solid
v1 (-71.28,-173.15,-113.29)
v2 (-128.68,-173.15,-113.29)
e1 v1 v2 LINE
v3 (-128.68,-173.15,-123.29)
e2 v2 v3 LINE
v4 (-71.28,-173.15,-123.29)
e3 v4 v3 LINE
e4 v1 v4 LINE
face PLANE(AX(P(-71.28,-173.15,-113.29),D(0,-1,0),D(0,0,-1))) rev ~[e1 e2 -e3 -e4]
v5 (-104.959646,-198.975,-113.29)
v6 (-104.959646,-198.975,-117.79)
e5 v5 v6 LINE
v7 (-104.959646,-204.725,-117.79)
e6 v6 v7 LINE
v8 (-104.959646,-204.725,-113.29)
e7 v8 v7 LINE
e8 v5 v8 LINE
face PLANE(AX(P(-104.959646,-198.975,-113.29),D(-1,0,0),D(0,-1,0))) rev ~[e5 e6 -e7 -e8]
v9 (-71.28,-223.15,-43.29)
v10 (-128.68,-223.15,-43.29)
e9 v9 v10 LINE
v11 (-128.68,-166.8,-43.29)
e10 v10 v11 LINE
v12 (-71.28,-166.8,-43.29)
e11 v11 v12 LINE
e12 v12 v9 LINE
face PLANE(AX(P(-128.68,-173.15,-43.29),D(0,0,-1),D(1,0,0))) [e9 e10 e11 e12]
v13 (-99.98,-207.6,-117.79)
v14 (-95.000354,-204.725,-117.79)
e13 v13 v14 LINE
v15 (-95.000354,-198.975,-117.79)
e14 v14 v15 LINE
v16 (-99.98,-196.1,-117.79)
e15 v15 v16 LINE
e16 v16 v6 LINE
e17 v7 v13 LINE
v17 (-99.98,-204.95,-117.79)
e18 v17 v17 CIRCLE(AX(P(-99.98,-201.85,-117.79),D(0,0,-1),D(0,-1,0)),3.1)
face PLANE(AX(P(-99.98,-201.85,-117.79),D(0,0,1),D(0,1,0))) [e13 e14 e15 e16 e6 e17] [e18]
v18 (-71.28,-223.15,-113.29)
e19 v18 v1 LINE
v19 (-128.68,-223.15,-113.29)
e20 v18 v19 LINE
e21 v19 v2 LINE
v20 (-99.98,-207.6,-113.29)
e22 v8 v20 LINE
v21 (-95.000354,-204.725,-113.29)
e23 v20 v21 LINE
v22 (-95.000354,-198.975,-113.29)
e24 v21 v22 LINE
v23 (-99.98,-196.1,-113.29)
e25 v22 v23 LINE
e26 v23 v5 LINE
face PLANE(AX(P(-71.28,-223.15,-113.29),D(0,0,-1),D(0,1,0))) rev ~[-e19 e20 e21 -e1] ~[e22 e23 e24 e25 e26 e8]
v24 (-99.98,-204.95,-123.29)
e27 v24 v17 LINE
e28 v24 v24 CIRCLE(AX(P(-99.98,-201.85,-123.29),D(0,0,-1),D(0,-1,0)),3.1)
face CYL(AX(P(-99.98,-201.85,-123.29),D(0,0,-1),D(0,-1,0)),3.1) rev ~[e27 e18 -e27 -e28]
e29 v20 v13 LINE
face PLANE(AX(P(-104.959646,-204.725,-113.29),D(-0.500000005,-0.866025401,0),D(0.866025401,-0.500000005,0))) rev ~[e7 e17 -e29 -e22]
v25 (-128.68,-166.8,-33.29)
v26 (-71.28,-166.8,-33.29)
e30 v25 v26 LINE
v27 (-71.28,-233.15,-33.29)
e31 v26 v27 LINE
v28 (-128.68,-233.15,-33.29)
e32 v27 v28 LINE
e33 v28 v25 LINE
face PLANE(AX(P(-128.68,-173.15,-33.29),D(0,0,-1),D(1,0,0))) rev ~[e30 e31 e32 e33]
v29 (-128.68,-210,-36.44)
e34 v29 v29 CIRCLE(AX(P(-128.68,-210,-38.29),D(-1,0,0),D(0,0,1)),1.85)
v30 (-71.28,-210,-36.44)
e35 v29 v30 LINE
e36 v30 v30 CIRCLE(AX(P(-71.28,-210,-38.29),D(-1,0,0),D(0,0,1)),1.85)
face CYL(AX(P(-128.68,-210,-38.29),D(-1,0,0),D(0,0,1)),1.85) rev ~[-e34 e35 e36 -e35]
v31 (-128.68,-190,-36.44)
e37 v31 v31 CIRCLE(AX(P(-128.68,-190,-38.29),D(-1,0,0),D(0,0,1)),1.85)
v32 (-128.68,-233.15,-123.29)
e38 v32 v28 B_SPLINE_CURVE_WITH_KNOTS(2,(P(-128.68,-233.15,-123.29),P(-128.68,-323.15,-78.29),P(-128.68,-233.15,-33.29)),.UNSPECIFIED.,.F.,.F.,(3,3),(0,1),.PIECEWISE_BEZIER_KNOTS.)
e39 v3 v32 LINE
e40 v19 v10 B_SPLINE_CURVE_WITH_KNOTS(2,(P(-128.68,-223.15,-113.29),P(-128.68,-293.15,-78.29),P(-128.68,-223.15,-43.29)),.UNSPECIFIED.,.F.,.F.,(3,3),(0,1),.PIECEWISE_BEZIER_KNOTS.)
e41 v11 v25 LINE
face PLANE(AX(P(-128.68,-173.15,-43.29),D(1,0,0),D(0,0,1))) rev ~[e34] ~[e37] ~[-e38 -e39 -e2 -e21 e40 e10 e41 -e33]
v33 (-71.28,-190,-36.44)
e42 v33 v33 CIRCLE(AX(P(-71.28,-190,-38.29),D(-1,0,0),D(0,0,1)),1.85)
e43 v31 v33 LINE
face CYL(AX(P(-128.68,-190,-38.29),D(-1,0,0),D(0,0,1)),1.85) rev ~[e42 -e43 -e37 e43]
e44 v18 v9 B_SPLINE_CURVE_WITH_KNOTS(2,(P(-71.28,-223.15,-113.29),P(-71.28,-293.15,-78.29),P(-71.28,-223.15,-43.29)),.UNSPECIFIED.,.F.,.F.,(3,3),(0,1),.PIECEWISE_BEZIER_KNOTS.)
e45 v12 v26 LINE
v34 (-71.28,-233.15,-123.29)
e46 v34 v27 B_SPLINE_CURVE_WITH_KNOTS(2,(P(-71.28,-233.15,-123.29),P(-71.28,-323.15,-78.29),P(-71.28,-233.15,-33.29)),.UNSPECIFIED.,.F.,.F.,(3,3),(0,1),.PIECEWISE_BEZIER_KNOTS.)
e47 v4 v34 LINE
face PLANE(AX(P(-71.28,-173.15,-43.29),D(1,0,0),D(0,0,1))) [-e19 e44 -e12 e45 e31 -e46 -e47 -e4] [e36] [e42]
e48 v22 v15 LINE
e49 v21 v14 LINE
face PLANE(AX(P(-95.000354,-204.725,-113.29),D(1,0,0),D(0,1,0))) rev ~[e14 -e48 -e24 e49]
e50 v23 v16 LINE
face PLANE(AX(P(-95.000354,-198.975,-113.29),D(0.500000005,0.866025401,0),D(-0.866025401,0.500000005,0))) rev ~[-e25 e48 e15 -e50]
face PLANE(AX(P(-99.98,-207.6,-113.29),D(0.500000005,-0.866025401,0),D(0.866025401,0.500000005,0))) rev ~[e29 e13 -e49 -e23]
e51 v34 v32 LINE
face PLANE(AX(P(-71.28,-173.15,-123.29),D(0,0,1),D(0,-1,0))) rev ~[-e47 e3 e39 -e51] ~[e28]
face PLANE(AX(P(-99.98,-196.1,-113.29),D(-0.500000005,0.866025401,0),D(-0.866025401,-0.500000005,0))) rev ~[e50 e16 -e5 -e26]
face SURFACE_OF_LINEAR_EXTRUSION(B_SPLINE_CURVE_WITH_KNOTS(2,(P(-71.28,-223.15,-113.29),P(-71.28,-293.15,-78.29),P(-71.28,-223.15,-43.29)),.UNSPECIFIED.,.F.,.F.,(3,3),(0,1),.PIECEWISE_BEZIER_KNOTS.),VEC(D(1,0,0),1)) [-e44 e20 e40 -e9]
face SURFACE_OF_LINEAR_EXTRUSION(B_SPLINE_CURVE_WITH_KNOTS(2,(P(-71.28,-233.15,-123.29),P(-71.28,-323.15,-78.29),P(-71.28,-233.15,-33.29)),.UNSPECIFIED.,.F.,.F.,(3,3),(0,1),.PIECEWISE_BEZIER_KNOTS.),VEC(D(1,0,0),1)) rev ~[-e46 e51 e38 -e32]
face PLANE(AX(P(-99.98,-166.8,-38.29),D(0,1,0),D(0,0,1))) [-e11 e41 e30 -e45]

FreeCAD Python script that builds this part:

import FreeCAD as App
import Part
import Sketcher
Q = App.Units.Quantity

doc = App.newDocument("Part")
body = doc.addObject("PartDesign::Body", "Body")

sketch1 = body.newObject("Sketcher::SketchObject", "Sketch")
sketch1.AttachmentSupport = (doc.getObject("XY_Plane"), [""])
sketch1.MapMode = "FlatFace"
sketch1.addGeometry(Part.LineSegment(App.Vector(10, 10, 0), App.Vector(10, 60, 0)), False)
sketch1.addGeometry(Part.LineSegment(App.Vector(10, 60, 0), App.Vector(0, 60, 0)), False)
sketch1.addGeometry(Part.LineSegment(App.Vector(0, 60, 0), App.Vector(0, 0, 0)), False)
sketch1.addGeometry(Part.BSplineCurve([App.Vector(0, 0, 0), App.Vector(45, -90, 0), App.Vector(90, 0, 0)], [3, 3], [0, 1], False, 2, [1, 1, 1], False), False)
sketch1.addGeometry(Part.LineSegment(App.Vector(90, 0, 0), App.Vector(90, 60, 0)), False)
sketch1.addGeometry(Part.LineSegment(App.Vector(90, 60, 0), App.Vector(80, 60, 0)), False)
sketch1.addGeometry(Part.LineSegment(App.Vector(80, 60, 0), App.Vector(80, 10, 0)), False)
sketch1.addGeometry(Part.BSplineCurve([App.Vector(10, 10, 0), App.Vector(45, -60, 0), App.Vector(80, 10, 0)], [3, 3], [0, 1], False, 2, [1, 1, 1], False), False)
sketch1.addConstraint(Sketcher.Constraint("Block", 3))
sketch1.addConstraint(Sketcher.Constraint("Block", 7))
sketch1.addConstraint(Sketcher.Constraint("Coincident", 0, 2, 1, 1))
sketch1.addConstraint(Sketcher.Constraint("Coincident", 1, 2, 2, 1))
sketch1.addConstraint(Sketcher.Constraint("Coincident", 2, 2, 3, 1))
sketch1.addConstraint(Sketcher.Constraint("Coincident", 3, 2, 4, 1))
sketch1.addConstraint(Sketcher.Constraint("Coincident", 4, 2, 5, 1))
sketch1.addConstraint(Sketcher.Constraint("Coincident", 5, 2, 6, 1))
sketch1.addConstraint(Sketcher.Constraint("Coincident", 6, 2, 7, 2))
sketch1.addConstraint(Sketcher.Constraint("Coincident", 7, 1, 0, 1))
sketch1.addConstraint(Sketcher.Constraint("Vertical", 0))
sketch1.addConstraint(Sketcher.Constraint("Horizontal", 1))
sketch1.addConstraint(Sketcher.Constraint("Vertical", 2))
sketch1.addConstraint(Sketcher.Constraint("Vertical", 4))
sketch1.addConstraint(Sketcher.Constraint("Horizontal", 5))
sketch1.addConstraint(Sketcher.Constraint("Vertical", 6))
sketch1.addConstraint(Sketcher.Constraint("Horizontal", 1, 2, 4, 2))
sketch1.addConstraint(Sketcher.Constraint("DistanceY", 0, 1, 0, 2, 50.0))
pad1 = body.newObject("PartDesign::Pad", "Pad")
pad1.Profile = sketch1
pad1.Length = 57.4

sketch2 = body.newObject("Sketcher::SketchObject", "Sketch001")
sketch2.AttachmentSupport = (doc.getObject("YZ_Plane"), [""])
sketch2.MapMode = "FlatFace"
sketch2.AttachmentOffset = App.Placement(App.Vector(0, 0, 10), App.Rotation())
sketch2.addGeometry(Part.LineSegment(App.Vector(28.425, 33.679646, 0), App.Vector(25.55, 28.7, 0)), False)
sketch2.addGeometry(Part.LineSegment(App.Vector(25.55, 28.7, 0), App.Vector(28.425, 23.720354, 0)), False)
sketch2.addGeometry(Part.LineSegment(App.Vector(28.425, 23.720354, 0), App.Vector(34.175, 23.720354, 0)), False)
sketch2.addGeometry(Part.LineSegment(App.Vector(34.175, 23.720354, 0), App.Vector(37.05, 28.7, 0)), False)
sketch2.addGeometry(Part.LineSegment(App.Vector(37.05, 28.7, 0), App.Vector(34.175, 33.679646, 0)), False)
sketch2.addGeometry(Part.LineSegment(App.Vector(34.175, 33.679646, 0), App.Vector(28.425, 33.679646, 0)), False)
sketch2.addConstraint(Sketcher.Constraint("Coincident", 0, 2, 1, 1))
sketch2.addConstraint(Sketcher.Constraint("Coincident", 1, 2, 2, 1))
sketch2.addConstraint(Sketcher.Constraint("Coincident", 2, 2, 3, 1))
sketch2.addConstraint(Sketcher.Constraint("Coincident", 3, 2, 4, 1))
sketch2.addConstraint(Sketcher.Constraint("Coincident", 4, 2, 5, 1))
sketch2.addConstraint(Sketcher.Constraint("Coincident", 5, 2, 0, 1))
sketch2.addConstraint(Sketcher.Constraint("Horizontal", 2))
sketch2.addConstraint(Sketcher.Constraint("Horizontal", 5))
sketch2.addConstraint(Sketcher.Constraint("Parallel", 0, 3))
sketch2.addConstraint(Sketcher.Constraint("Parallel", 1, 4))
sketch2.addConstraint(Sketcher.Constraint("Horizontal", 0, 2, 3, 2))
sketch2.addConstraint(Sketcher.Constraint("Vertical", 2, 2, 4, 2))
sketch2.addConstraint(Sketcher.Constraint("Vertical", 1, 2, 5, 2))
sketch2.addConstraint(Sketcher.Constraint("Angle", 0, Q("-120 deg")))
sketch2.addConstraint(Sketcher.Constraint("DistanceX", 2, 1, 2, 2, 5.75))
sketch2.addConstraint(Sketcher.Constraint("DistanceY", -1, 1, 0, 2, 28.7))
sketch2.addConstraint(Sketcher.Constraint("DistanceX", 0, 2, 3, 2, 11.5))
sketch2.addConstraint(Sketcher.Constraint("DistanceX", -1, 1, 0, 2, 25.55))
pocket1 = body.newObject("PartDesign::Pocket", "Pocket")
pocket1.Profile = sketch2
pocket1.Length = 4.5

sketch3 = body.newObject("Sketcher::SketchObject", "Sketch002")
sketch3.AttachmentSupport = (doc.getObject("YZ_Plane"), [""])
sketch3.MapMode = "FlatFace"
sketch3.addGeometry(Part.Circle(App.Vector(31.3, 28.7, 0), App.Vector(0, 0, 1), 3.1), False)
sketch3.addConstraint(Sketcher.Constraint("Diameter", 0, 6.2))
sketch3.addConstraint(Sketcher.Constraint("DistanceX", -1, 1, 0, 3, 31.3))
sketch3.addConstraint(Sketcher.Constraint("DistanceY", -1, 1, 0, 3, 28.7))
pocket2 = body.newObject("PartDesign::Pocket", "Pocket001")
pocket2.Profile = sketch3
pocket2.Length = 10
pocket2.Reversed = True

sketch4 = body.newObject("Sketcher::SketchObject", "Sketch003")
sketch4.AttachmentSupport = (doc.getObject("XZ_Plane"), [""])
sketch4.MapMode = "FlatFace"
sketch4.AttachmentOffset = App.Placement(App.Vector(0, 0, -60), App.Rotation())
sketch4.addGeometry(Part.LineSegment(App.Vector(80, 0, 0), App.Vector(80, 57.4, 0)), False)
sketch4.addGeometry(Part.LineSegment(App.Vector(80, 57.4, 0), App.Vector(90, 57.4, 0)), False)
sketch4.addGeometry(Part.LineSegment(App.Vector(90, 57.4, 0), App.Vector(90, 0, 0)), False)
sketch4.addGeometry(Part.LineSegment(App.Vector(90, 0, 0), App.Vector(80, 0, 0)), False)
sketch4.addConstraint(Sketcher.Constraint("Coincident", 0, 2, 1, 1))
sketch4.addConstraint(Sketcher.Constraint("Coincident", 1, 2, 2, 1))
sketch4.addConstraint(Sketcher.Constraint("Coincident", 2, 2, 3, 1))
sketch4.addConstraint(Sketcher.Constraint("Coincident", 3, 2, 0, 1))
sketch4.addConstraint(Sketcher.Constraint("Vertical", 0))
sketch4.addConstraint(Sketcher.Constraint("Horizontal", 1))
sketch4.addConstraint(Sketcher.Constraint("Vertical", 2))
sketch4.addConstraint(Sketcher.Constraint("Horizontal", 3))
sketch4.addConstraint(Sketcher.Constraint("PointOnObject", 2, 2, -1))
sketch4.addConstraint(Sketcher.Constraint("DistanceX", 1, 1, 1, 2, 10.0))
sketch4.addConstraint(Sketcher.Constraint("DistanceY", 0, 1, 0, 2, 57.4))
sketch4.addConstraint(Sketcher.Constraint("DistanceX", -1, 1, 0, 2, 80.0))
pad2 = body.newObject("PartDesign::Pad", "Pad001")
pad2.Profile = sketch4
pad2.Length = 6.35
pad2.Reversed = True

sketch5 = body.newObject("Sketcher::SketchObject", "Sketch004")
sketch5.AttachmentSupport = (doc.getObject("XY_Plane"), [""])
sketch5.MapMode = "FlatFace"
sketch5.AttachmentOffset = App.Placement(App.Vector(0, 0, 57.4), App.Rotation())
sketch5.addGeometry(Part.Circle(App.Vector(85, 43.15, 0), App.Vector(0, 0, 1), 1.85), False)
sketch5.addGeometry(Part.Circle(App.Vector(85, 23.15, 0), App.Vector(0, 0, 1), 1.85), False)
sketch5.addConstraint(Sketcher.Constraint("Equal", 0, 1))
sketch5.addConstraint(Sketcher.Constraint("Vertical", 0, 3, 1, 3))
sketch5.addConstraint(Sketcher.Constraint("Diameter", 0, 3.7))
sketch5.addConstraint(Sketcher.Constraint("DistanceX", -1, 1, 0, 3, 85.0))
sketch5.addConstraint(Sketcher.Constraint("DistanceY", 1, 3, 0, 3, 20.0))
sketch5.addConstraint(Sketcher.Constraint("DistanceY", -1, 1, 0, 3, 43.15))
pocket3 = body.newObject("PartDesign::Pocket", "Pocket002")
pocket3.Profile = sketch5
pocket3.Type = "ThroughAll"
body2 = doc.addObject("PartDesign::Body", "Body001")
doc.recompute()

body.Placement = App.Placement(App.Vector(-71.28, -233.15, -123.29), App.Rotation(App.Vector(0, 1, 0), 270))
boolean = body2.newObject("PartDesign::Boolean", "Boolean")
boolean.Type = "Fuse"
boolean.addObjects([body])

doc.recompute()
